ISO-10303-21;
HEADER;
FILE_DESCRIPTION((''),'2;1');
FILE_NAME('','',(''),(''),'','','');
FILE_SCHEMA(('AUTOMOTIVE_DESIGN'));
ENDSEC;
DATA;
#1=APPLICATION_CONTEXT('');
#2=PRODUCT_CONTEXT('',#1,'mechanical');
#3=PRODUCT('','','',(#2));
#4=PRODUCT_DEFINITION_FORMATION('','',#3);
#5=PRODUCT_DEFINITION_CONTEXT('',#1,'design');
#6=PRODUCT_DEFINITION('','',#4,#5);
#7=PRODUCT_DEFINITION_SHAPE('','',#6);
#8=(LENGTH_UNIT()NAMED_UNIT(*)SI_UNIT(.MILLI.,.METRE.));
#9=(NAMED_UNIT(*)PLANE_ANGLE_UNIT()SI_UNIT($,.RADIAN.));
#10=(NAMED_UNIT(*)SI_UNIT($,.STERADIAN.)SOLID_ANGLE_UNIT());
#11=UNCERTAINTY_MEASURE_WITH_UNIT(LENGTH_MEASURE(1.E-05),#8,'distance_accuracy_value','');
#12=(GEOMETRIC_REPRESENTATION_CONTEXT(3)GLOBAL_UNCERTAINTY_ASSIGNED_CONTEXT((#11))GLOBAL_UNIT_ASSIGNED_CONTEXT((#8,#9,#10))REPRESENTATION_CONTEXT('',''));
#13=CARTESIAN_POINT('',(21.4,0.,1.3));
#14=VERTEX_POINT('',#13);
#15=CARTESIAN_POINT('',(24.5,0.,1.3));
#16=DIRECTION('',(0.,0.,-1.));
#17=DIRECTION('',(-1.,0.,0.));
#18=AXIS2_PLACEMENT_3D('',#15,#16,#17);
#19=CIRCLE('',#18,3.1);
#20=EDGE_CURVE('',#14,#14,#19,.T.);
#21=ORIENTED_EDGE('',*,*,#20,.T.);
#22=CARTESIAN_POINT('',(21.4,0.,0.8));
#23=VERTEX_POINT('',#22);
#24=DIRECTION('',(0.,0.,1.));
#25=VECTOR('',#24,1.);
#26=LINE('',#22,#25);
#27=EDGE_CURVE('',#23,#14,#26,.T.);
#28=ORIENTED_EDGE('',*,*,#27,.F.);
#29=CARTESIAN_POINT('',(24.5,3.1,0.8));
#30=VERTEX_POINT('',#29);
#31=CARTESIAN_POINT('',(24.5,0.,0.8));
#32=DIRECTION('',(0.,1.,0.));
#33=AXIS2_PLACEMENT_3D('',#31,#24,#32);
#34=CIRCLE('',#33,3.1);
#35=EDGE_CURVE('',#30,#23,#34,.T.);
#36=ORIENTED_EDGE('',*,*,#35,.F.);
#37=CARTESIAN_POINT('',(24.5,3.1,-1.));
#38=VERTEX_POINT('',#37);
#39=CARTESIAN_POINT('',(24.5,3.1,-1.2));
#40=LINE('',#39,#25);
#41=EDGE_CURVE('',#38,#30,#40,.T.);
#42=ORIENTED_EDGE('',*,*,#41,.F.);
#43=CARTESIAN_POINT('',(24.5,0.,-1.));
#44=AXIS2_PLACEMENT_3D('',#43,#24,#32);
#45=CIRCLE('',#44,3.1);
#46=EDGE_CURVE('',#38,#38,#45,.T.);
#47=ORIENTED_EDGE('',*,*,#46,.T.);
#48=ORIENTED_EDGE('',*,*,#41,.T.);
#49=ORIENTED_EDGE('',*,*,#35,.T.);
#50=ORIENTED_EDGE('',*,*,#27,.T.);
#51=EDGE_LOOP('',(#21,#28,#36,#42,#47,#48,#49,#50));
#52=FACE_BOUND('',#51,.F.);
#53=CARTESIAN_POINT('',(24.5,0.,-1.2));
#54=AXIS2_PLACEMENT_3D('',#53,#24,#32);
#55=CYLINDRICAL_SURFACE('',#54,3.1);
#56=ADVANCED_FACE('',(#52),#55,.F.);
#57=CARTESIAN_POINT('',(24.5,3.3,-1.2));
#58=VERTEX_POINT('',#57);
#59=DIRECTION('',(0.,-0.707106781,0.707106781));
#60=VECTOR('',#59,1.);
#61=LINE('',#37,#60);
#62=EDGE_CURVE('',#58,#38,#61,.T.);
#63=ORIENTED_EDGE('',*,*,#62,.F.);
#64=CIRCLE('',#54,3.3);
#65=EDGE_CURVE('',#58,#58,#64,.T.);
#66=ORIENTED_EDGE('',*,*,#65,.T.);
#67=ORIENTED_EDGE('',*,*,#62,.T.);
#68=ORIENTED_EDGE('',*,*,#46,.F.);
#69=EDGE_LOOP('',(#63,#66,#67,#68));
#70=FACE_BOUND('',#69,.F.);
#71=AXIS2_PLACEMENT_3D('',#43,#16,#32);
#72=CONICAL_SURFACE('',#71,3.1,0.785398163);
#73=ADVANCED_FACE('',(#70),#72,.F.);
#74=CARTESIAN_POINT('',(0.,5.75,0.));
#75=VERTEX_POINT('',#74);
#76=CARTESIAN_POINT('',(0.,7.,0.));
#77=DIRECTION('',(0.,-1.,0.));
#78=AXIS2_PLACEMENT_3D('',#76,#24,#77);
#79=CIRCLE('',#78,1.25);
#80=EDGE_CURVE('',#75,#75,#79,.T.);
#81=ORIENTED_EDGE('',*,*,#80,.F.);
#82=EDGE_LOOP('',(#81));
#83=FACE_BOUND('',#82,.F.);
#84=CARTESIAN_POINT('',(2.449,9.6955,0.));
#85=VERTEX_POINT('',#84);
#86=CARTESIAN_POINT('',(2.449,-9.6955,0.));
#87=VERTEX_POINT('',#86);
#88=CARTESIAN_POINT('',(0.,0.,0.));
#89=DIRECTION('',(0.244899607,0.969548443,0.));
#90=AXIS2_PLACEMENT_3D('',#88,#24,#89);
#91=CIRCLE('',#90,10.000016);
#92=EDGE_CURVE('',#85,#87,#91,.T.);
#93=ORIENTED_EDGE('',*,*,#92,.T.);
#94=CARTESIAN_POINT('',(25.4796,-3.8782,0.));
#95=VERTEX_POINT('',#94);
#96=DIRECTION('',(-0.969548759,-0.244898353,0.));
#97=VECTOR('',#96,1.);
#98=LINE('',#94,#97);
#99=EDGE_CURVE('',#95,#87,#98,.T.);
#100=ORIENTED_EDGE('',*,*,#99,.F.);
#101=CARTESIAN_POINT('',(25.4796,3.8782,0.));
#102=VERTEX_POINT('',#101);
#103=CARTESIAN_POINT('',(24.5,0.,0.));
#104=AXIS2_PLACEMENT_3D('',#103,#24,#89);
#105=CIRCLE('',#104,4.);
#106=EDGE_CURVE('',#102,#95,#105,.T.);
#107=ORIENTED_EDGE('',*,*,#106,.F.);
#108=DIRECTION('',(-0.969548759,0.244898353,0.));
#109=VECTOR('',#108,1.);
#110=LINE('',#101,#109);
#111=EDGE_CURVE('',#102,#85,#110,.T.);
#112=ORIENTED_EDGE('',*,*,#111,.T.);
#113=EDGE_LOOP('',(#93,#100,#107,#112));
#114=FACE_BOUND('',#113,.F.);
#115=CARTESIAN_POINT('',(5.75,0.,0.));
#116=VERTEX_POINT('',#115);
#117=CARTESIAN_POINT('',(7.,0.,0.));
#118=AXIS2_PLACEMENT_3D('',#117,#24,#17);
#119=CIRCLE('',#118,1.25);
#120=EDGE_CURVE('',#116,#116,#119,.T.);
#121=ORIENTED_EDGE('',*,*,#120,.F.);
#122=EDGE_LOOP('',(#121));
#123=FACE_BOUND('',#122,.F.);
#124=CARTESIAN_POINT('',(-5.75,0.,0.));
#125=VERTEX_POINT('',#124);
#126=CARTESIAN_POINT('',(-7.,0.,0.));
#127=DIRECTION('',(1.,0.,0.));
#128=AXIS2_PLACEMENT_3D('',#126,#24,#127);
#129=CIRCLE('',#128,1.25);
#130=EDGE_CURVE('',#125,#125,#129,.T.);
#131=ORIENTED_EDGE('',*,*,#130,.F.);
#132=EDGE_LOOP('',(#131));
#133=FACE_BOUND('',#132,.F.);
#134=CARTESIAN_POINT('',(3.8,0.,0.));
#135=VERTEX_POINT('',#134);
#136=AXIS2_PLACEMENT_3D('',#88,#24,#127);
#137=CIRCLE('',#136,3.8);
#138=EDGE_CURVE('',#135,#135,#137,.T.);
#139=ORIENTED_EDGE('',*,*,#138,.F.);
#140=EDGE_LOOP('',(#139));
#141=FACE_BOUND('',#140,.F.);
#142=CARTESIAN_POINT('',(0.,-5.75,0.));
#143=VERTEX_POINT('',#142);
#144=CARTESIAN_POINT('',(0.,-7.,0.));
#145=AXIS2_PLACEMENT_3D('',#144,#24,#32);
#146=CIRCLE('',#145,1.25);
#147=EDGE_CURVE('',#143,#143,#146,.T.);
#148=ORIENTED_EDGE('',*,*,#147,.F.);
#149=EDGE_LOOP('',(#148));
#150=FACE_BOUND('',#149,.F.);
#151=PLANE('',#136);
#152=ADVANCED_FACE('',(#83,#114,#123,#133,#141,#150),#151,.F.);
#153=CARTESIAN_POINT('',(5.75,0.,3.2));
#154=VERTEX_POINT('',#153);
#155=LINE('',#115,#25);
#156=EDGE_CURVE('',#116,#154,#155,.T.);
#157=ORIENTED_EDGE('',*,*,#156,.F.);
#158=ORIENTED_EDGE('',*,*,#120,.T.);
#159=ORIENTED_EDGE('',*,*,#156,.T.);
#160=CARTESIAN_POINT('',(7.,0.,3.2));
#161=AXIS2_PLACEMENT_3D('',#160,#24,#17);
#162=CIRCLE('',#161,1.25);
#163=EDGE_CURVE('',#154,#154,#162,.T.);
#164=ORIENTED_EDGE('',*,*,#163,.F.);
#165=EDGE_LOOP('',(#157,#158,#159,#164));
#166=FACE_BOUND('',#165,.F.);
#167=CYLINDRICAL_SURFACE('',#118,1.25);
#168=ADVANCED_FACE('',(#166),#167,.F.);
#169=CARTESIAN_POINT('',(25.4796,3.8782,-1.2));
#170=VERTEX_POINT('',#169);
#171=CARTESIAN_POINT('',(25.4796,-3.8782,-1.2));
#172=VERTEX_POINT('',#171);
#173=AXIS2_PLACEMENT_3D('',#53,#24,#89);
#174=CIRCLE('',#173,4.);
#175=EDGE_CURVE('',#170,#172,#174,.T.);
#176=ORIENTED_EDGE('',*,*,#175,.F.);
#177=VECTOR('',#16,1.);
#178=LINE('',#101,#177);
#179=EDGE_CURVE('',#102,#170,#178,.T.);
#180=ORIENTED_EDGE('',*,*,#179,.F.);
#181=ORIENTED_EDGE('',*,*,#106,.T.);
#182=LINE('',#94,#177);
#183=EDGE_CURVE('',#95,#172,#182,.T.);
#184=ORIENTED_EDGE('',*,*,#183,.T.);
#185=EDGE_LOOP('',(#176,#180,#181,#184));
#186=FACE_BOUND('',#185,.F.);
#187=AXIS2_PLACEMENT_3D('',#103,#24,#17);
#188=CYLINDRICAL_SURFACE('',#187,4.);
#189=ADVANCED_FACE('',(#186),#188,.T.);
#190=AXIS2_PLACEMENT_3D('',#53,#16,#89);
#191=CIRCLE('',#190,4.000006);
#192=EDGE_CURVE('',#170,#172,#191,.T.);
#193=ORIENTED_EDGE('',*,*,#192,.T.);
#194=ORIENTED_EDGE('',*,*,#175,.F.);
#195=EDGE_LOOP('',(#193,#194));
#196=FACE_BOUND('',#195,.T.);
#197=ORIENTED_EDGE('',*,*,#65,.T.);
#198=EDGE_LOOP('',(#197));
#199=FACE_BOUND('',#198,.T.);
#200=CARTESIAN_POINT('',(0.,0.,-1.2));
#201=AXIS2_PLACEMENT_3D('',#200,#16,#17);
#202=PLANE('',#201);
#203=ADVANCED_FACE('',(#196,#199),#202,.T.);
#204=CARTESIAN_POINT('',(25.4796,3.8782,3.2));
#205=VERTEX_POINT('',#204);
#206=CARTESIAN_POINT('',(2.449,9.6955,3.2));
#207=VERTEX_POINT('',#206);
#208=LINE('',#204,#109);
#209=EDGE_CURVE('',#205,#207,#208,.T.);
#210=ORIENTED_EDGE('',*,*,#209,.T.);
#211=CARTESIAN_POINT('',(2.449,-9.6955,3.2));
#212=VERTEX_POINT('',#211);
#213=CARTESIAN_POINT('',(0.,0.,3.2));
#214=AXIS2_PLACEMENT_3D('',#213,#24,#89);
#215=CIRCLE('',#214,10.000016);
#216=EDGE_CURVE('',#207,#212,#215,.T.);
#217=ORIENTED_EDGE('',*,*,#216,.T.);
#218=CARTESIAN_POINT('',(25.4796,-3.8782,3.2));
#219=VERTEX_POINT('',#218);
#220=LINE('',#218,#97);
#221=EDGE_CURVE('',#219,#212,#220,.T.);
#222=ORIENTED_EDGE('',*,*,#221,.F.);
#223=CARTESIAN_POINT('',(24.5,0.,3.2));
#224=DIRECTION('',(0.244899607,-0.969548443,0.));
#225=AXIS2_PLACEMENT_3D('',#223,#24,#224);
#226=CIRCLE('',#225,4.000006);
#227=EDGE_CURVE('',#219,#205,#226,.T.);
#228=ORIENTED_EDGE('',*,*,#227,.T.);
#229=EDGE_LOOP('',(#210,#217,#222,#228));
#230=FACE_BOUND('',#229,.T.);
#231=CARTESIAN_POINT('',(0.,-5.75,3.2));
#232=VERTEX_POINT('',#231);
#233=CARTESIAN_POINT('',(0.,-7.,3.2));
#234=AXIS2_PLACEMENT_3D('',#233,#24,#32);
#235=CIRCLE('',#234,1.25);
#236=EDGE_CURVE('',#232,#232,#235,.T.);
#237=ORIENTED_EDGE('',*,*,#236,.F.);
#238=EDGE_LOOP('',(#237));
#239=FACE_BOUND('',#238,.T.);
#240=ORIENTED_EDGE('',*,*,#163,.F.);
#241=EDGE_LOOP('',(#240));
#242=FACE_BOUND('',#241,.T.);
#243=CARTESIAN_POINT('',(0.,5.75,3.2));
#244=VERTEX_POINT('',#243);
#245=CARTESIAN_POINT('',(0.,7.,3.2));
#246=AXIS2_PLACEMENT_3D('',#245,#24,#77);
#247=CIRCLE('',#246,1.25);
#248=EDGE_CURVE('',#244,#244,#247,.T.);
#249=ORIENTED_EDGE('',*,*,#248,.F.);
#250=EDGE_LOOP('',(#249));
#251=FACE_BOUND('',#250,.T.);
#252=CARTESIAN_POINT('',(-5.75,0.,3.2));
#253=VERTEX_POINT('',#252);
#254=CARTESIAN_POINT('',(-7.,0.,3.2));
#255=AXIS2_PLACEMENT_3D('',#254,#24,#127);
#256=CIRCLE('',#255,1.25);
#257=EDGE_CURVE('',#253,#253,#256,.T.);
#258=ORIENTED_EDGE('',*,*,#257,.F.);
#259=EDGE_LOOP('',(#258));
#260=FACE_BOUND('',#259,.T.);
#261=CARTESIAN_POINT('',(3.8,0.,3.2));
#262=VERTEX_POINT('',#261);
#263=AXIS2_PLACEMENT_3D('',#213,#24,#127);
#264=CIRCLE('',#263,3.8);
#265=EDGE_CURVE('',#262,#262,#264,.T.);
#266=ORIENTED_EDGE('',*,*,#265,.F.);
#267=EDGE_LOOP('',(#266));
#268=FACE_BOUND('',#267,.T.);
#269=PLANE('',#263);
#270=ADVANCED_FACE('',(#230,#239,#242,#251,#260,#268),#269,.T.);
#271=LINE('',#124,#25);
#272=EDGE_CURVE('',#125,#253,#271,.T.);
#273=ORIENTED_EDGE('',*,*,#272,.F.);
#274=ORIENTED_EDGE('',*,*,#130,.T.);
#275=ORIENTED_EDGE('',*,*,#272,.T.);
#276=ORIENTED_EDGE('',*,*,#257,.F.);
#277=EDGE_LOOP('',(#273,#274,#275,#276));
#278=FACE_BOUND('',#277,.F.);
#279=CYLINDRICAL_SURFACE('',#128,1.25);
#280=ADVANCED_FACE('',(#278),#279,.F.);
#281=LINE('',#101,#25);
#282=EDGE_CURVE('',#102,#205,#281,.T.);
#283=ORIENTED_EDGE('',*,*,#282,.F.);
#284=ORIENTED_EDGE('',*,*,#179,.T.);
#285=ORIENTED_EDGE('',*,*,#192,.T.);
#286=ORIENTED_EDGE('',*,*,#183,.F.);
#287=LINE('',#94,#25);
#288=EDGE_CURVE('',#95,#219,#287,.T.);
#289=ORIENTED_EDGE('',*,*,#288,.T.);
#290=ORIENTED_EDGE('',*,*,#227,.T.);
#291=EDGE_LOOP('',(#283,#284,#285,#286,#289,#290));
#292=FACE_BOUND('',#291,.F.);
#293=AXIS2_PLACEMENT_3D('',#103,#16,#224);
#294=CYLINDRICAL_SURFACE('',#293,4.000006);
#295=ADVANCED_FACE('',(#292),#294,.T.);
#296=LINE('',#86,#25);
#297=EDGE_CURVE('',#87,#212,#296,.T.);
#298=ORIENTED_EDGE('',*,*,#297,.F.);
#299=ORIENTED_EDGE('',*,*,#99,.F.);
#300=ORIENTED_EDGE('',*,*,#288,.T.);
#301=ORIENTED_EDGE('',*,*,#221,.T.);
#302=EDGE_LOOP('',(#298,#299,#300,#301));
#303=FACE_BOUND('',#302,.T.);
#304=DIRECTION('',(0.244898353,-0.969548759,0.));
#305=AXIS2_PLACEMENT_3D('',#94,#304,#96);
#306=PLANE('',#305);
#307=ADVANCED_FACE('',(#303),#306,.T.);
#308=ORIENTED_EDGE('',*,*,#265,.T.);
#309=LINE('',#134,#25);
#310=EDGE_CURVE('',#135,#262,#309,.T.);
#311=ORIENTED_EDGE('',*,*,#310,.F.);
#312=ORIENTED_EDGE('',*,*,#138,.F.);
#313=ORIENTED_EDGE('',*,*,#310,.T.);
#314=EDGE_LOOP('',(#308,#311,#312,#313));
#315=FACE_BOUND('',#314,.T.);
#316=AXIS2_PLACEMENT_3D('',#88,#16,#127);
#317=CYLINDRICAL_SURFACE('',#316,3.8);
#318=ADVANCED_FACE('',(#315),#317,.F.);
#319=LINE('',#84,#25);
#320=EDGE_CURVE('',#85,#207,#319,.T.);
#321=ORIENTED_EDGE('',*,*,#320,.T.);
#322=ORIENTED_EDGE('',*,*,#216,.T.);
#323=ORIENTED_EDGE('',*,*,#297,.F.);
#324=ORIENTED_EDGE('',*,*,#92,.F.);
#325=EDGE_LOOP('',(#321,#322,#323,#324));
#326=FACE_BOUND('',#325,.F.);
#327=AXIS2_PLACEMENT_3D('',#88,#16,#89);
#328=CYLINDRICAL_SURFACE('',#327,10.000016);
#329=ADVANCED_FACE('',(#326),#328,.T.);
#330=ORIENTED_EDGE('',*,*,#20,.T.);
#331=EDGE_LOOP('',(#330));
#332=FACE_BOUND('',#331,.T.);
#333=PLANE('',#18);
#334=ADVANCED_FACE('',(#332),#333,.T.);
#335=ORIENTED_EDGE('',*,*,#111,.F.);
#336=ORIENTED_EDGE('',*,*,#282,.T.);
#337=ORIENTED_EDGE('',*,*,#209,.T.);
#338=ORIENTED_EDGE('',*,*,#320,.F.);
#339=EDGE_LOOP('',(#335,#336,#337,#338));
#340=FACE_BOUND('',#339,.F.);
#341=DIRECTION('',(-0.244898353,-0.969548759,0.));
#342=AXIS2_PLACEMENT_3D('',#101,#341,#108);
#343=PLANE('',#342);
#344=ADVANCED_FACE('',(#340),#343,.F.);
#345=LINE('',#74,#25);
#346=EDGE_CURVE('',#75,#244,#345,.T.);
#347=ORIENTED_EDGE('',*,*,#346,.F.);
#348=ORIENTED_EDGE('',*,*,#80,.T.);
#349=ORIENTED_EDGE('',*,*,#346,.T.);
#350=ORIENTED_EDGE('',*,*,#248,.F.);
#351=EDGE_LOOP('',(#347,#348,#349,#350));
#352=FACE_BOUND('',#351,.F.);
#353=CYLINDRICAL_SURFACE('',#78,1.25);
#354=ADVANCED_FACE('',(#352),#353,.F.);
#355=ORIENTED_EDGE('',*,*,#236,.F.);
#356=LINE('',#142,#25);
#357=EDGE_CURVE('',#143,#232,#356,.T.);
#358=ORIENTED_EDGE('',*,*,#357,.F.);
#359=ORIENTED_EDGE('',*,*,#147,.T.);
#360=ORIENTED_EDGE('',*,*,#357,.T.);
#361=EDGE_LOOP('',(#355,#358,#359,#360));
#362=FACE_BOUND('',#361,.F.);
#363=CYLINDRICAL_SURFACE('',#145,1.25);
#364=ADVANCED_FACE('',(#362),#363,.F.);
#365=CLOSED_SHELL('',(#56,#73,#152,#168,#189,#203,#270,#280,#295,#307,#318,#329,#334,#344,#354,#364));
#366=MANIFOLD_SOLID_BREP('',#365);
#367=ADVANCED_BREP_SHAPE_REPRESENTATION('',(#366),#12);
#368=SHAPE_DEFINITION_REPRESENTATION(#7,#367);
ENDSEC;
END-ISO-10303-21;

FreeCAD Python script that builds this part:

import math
import FreeCAD as App
import Part
import Sketcher
from FreeCAD import Vector


def edges_at(feature, points):
    """Names of the edges that pass closest to the given points."""
    edges = feature.Shape.Edges
    near = lambda p: min(range(len(edges)), key=lambda i: edges[i].distToShape(Part.Vertex(*p))[0])
    return sorted({f"Edge{near(p) + 1}" for p in points})

doc = App.newDocument("Part")
body = doc.addObject("PartDesign::Body", "Body")

sketch1 = doc.addObject("Sketcher::SketchObject", "Sketch")
body.addObject(sketch1)
sketch1.AttachmentSupport = (doc.XY_Plane, [""])
sketch1.MapMode = "FlatFace"
sketch1.addGeometry(Part.LineSegment(Vector(25.4796, 3.8782, 0), Vector(2.449, 9.6955, 0)), False)
sketch1.addGeometry(Part.ArcOfCircle(Part.Circle(Vector(0, 0, 0), Vector(0, 0, 1), 10.000016), math.radians(75.824099), math.radians(284.175901)), False)
sketch1.addGeometry(Part.LineSegment(Vector(2.449, -9.6955, 0), Vector(25.4796, -3.8782, 0)), False)
sketch1.addGeometry(Part.ArcOfCircle(Part.Circle(Vector(24.5, 0, 0), Vector(0, 0, 1), 4.000006), math.radians(-75.824099), math.radians(75.824099)), False)
sketch1.addGeometry(Part.Circle(Vector(0, 0, 0), Vector(0, 0, 1), 3.8), False)
sketch1.addConstraint(Sketcher.Constraint("Tangent", 0, 2, 1, 1))
sketch1.addConstraint(Sketcher.Constraint("Tangent", 1, 2, 2, 1))
sketch1.addConstraint(Sketcher.Constraint("Tangent", 2, 2, 3, 1))
sketch1.addConstraint(Sketcher.Constraint("Tangent", 3, 2, 0, 1))
sketch1.addConstraint(Sketcher.Constraint("Coincident", 1, 3, -1, 1))
sketch1.addConstraint(Sketcher.Constraint("Coincident", 4, 3, -1, 1))
sketch1.addConstraint(Sketcher.Constraint("PointOnObject", 3, 3, -1))
sketch1.addConstraint(Sketcher.Constraint("Radius", 1, 10.0))
sketch1.addConstraint(Sketcher.Constraint("Radius", 3, 4.0))
sketch1.addConstraint(Sketcher.Constraint("Diameter", 4, 7.6))
sketch1.addConstraint(Sketcher.Constraint("DistanceX", -1, 1, 3, 3, 24.5))
pad1 = doc.addObject("PartDesign::Pad", "Pad")
body.addObject(pad1)
pad1.Profile = sketch1
pad1.Length = 3.2

sketch2 = doc.addObject("Sketcher::SketchObject", "Sketch001")
body.addObject(sketch2)
sketch2.AttachmentSupport = (doc.XY_Plane, [""])
sketch2.MapMode = "FlatFace"
sketch2.addGeometry(Part.Circle(Vector(24.5, 0, 0), Vector(0, 0, 1), 4.000006), False)
sketch2.addConstraint(Sketcher.Constraint("PointOnObject", 0, 3, -1))
sketch2.addConstraint(Sketcher.Constraint("Diameter", 0, 8.0))
sketch2.addConstraint(Sketcher.Constraint("DistanceX", -1, 1, 0, 3, 24.5))
pad2 = doc.addObject("PartDesign::Pad", "Pad001")
body.addObject(pad2)
pad2.Profile = sketch2
pad2.Length = 1.2
pad2.Reversed = True

sketch3 = doc.addObject("Sketcher::SketchObject", "Sketch002")
body.addObject(sketch3)
sketch3.AttachmentSupport = (doc.XY_Plane, [""])
sketch3.MapMode = "FlatFace"
sketch3.AttachmentOffset = App.Placement(Vector(0, 0, -1.2), App.Rotation())
sketch3.addGeometry(Part.Circle(Vector(24.5, 0, 0), Vector(0, 0, 1), 3.1), False)
sketch3.addConstraint(Sketcher.Constraint("PointOnObject", 0, 3, -1))
sketch3.addConstraint(Sketcher.Constraint("Diameter", 0, 6.2))
sketch3.addConstraint(Sketcher.Constraint("DistanceX", -1, 1, 0, 3, 24.5))
doc.recompute()
hole = doc.addObject("PartDesign::Hole", "Hole")
body.addObject(hole)
hole.Profile = sketch3
hole.ThreadType = "None"
hole.Diameter = 6.2
hole.DepthType = "Dimension"
hole.Depth = 2
hole.DrillPoint = "Flat"
hole.Reversed = True

sketch4 = doc.addObject("Sketcher::SketchObject", "Sketch003")
body.addObject(sketch4)
sketch4.AttachmentSupport = (doc.XY_Plane, [""])
sketch4.MapMode = "FlatFace"
sketch4.addGeometry(Part.Circle(Vector(0, -7, 0), Vector(0, 0, 1), 1.25), False)
sketch4.addConstraint(Sketcher.Constraint("PointOnObject", 0, 3, -2))
sketch4.addConstraint(Sketcher.Constraint("Diameter", 0, 2.5))
sketch4.addConstraint(Sketcher.Constraint("DistanceY", 0, 3, -1, 1, 7.0))
doc.recompute()
hole2 = doc.addObject("PartDesign::Hole", "Hole001")
body.addObject(hole2)
hole2.Profile = sketch4
hole2.ThreadType = "None"
hole2.Diameter = 2.5
hole2.DepthType = "ThroughAll"
hole2.Reversed = True
doc.recompute()

polarpattern = doc.addObject("PartDesign::PolarPattern", "PolarPattern")
body.addObject(polarpattern)
polarpattern.Originals = [hole2]
polarpattern.Axis = (doc.Z_Axis, [""])
polarpattern.Angle = 360
polarpattern.Occurrences = 4
body.Tip = polarpattern
doc.recompute()

chamfer = doc.addObject("PartDesign::Chamfer", "Chamfer")
body.addObject(chamfer)
chamfer.Base = (polarpattern, edges_at(polarpattern, [(24.5, -3.1, -1.2)]))
chamfer.Size = 0.2

sketch5 = doc.addObject("Sketcher::SketchObject", "Sketch004")
body.addObject(sketch5)
sketch5.AttachmentSupport = (doc.XY_Plane, [""])
sketch5.MapMode = "FlatFace"
sketch5.AttachmentOffset = App.Placement(Vector(0, 0, 0.8), App.Rotation())
sketch5.addGeometry(Part.Circle(Vector(24.5, 0, 0), Vector(0, 0, 1), 3.1), False)
sketch5.addConstraint(Sketcher.Constraint("PointOnObject", 0, 3, -1))
sketch5.addConstraint(Sketcher.Constraint("Diameter", 0, 6.2))
sketch5.addConstraint(Sketcher.Constraint("DistanceX", -1, 1, 0, 3, 24.5))
pocket1 = doc.addObject("PartDesign::Pocket", "Pocket")
body.addObject(pocket1)
pocket1.Profile = sketch5
pocket1.Length = 0.5
pocket1.Reversed = True

doc.recompute()
